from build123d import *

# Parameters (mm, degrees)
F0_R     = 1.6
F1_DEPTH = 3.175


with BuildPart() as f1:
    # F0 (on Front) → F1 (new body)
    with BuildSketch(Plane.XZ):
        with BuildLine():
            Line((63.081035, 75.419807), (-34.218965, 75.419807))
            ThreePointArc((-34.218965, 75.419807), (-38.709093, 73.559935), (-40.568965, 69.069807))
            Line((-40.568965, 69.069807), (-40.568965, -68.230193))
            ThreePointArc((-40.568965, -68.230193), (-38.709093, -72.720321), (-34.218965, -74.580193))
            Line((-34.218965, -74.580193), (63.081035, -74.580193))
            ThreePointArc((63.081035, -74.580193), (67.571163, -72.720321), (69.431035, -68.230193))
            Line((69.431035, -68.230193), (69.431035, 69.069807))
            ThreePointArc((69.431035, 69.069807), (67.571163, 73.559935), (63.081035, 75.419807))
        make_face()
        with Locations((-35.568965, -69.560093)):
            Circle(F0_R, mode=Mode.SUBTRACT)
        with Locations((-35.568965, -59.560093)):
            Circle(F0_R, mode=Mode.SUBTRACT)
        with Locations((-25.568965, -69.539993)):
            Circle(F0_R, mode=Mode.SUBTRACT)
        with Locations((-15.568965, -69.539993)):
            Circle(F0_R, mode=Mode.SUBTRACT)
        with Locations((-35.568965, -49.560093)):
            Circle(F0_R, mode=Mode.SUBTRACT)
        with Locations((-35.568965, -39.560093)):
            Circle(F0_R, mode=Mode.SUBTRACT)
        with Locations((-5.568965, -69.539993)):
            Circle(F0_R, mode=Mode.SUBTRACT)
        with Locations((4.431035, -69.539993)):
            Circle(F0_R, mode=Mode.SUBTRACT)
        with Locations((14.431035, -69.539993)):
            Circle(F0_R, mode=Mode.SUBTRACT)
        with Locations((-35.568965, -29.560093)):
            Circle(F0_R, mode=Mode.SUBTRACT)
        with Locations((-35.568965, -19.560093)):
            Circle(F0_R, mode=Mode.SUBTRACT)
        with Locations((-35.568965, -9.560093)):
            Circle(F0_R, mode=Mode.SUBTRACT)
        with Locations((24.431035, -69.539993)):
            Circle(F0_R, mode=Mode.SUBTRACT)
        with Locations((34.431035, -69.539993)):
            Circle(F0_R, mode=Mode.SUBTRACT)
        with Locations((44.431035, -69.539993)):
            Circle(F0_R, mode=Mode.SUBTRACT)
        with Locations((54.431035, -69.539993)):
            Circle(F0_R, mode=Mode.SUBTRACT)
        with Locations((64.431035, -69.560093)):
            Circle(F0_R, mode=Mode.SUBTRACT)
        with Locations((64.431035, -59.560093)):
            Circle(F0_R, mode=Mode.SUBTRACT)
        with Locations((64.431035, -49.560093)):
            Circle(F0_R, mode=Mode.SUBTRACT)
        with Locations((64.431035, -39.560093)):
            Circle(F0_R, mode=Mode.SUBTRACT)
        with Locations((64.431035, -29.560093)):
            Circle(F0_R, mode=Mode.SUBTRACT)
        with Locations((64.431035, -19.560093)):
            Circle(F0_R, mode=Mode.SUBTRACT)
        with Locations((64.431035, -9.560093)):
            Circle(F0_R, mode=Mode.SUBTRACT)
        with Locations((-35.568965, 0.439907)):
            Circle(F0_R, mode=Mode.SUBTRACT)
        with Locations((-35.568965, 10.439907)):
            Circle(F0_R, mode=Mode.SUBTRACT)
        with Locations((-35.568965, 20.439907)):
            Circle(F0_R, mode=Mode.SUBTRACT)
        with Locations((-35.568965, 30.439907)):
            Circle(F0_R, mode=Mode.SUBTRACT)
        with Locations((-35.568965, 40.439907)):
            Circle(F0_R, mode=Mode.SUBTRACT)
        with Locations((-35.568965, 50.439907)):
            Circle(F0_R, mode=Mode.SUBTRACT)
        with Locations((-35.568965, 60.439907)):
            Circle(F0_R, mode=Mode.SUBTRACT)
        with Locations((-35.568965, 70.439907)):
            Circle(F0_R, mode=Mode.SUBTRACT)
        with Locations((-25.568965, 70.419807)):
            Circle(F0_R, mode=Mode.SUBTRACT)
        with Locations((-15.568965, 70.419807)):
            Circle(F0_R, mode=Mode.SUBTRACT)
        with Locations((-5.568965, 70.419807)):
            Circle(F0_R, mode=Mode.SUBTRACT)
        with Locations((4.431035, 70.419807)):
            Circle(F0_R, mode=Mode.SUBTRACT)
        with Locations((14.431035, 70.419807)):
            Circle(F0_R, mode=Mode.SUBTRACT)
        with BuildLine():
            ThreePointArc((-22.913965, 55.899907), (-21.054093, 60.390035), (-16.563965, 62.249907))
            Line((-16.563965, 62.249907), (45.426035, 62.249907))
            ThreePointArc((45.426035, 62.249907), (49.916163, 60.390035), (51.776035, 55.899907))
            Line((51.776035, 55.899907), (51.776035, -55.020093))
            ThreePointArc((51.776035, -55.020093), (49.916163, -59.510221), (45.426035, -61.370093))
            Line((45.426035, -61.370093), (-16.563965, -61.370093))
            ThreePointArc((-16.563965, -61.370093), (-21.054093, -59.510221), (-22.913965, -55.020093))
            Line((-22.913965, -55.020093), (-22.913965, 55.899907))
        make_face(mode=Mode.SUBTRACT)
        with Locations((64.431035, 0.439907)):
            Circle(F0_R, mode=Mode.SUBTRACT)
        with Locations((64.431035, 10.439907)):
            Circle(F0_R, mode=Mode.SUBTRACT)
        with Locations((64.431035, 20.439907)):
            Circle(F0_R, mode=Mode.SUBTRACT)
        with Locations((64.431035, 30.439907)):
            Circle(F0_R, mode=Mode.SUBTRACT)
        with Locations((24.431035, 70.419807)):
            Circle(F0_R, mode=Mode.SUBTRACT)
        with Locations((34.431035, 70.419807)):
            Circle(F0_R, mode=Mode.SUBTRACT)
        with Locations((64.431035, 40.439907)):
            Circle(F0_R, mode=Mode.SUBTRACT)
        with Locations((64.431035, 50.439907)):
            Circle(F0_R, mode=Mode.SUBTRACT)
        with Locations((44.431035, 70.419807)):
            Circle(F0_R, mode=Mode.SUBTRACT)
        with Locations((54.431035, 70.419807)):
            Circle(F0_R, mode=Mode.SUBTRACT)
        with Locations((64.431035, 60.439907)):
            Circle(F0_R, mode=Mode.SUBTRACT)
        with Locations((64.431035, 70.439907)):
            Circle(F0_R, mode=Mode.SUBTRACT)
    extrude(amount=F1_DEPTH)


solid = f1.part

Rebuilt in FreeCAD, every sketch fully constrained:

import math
import FreeCAD as App
import Part
import Sketcher

doc = App.newDocument("Part")
params = doc.addObject("Spreadsheet::Sheet", "Params")
for row, (alias, value) in enumerate([
    ("sketch1_diameter", "3.2 mm"),
    ("sketch1_radius", "6.35 mm"),
    ("sketch1_width", "97.3 mm"),
    ("sketch1_height", "137.3 mm"),
    ("sketch1_width2", "61.99 mm"),
    ("pad1_length", "3.175 mm"),
], start=1):
    params.set(f"A{row}", alias)
    params.set(f"B{row}", "=" + value)
    params.setAlias(f"B{row}", alias)

body = doc.addObject("PartDesign::Body", "Body")

sketch1 = doc.addObject("Sketcher::SketchObject", "Sketch")
body.addObject(sketch1)
sketch1.AttachmentSupport = (doc.XZ_Plane, [""])
sketch1.MapMode = "FlatFace"
sketch1.addGeometry(Part.LineSegment(App.Vector(63.1, 75.4, 0), App.Vector(-34.2, 75.4, 0)), False)
sketch1.addGeometry(Part.ArcOfCircle(Part.Circle(App.Vector(-34.2, 69.1, 0), App.Vector(0, 0, 1), 6.4), math.radians(90), math.radians(180)), False)
sketch1.addGeometry(Part.LineSegment(App.Vector(-40.6, 69.1, 0), App.Vector(-40.6, -68.2, 0)), False)
sketch1.addGeometry(Part.ArcOfCircle(Part.Circle(App.Vector(-34.2, -68.2, 0), App.Vector(0, 0, 1), 6.4), math.radians(-180), math.radians(-90)), False)
sketch1.addGeometry(Part.LineSegment(App.Vector(-34.2, -74.6, 0), App.Vector(63.1, -74.6, 0)), False)
sketch1.addGeometry(Part.ArcOfCircle(Part.Circle(App.Vector(63.1, -68.2, 0), App.Vector(0, 0, 1), 6.4), math.radians(-90), math.radians(0)), False)
sketch1.addGeometry(Part.LineSegment(App.Vector(69.4, -68.2, 0), App.Vector(69.4, 69.1, 0)), False)
sketch1.addGeometry(Part.ArcOfCircle(Part.Circle(App.Vector(63.1, 69.1, 0), App.Vector(0, 0, 1), 6.4), math.radians(0), math.radians(90)), False)
sketch1.addGeometry(Part.Circle(App.Vector(-35.6, -69.6, 0), App.Vector(0, 0, 1), 1.6), False)
sketch1.addGeometry(Part.Circle(App.Vector(-25.6, -69.5, 0), App.Vector(0, 0, 1), 1.6), False)
sketch1.addGeometry(Part.Circle(App.Vector(-35.6, -59.6, 0), App.Vector(0, 0, 1), 1.6), False)
sketch1.addGeometry(Part.Circle(App.Vector(-15.6, -69.5, 0), App.Vector(0, 0, 1), 1.6), False)
sketch1.addGeometry(Part.Circle(App.Vector(-35.6, -49.6, 0), App.Vector(0, 0, 1), 1.6), False)
sketch1.addGeometry(Part.Circle(App.Vector(-35.6, -39.6, 0), App.Vector(0, 0, 1), 1.6), False)
sketch1.addGeometry(Part.Circle(App.Vector(-5.6, -69.5, 0), App.Vector(0, 0, 1), 1.6), False)
sketch1.addGeometry(Part.Circle(App.Vector(4.4, -69.5, 0), App.Vector(0, 0, 1), 1.6), False)
sketch1.addGeometry(Part.Circle(App.Vector(-35.6, -29.6, 0), App.Vector(0, 0, 1), 1.6), False)
sketch1.addGeometry(Part.Circle(App.Vector(-35.6, -19.6, 0), App.Vector(0, 0, 1), 1.6), False)
sketch1.addGeometry(Part.Circle(App.Vector(-35.6, -9.6, 0), App.Vector(0, 0, 1), 1.6), False)
sketch1.addGeometry(Part.Circle(App.Vector(14.4, -69.5, 0), App.Vector(0, 0, 1), 1.6), False)
sketch1.addGeometry(Part.Circle(App.Vector(24.4, -69.5, 0), App.Vector(0, 0, 1), 1.6), False)
sketch1.addGeometry(Part.Circle(App.Vector(34.4, -69.5, 0), App.Vector(0, 0, 1), 1.6), False)
sketch1.addGeometry(Part.Circle(App.Vector(44.4, -69.5, 0), App.Vector(0, 0, 1), 1.6), False)
sketch1.addGeometry(Part.Circle(App.Vector(54.4, -69.5, 0), App.Vector(0, 0, 1), 1.6), False)
sketch1.addGeometry(Part.Circle(App.Vector(64.4, -69.6, 0), App.Vector(0, 0, 1), 1.6), False)
sketch1.addGeometry(Part.Circle(App.Vector(64.4, -59.6, 0), App.Vector(0, 0, 1), 1.6), False)
sketch1.addGeometry(Part.Circle(App.Vector(64.4, -49.6, 0), App.Vector(0, 0, 1), 1.6), False)
sketch1.addGeometry(Part.Circle(App.Vector(64.4, -39.6, 0), App.Vector(0, 0, 1), 1.6), False)
sketch1.addGeometry(Part.Circle(App.Vector(64.4, -29.6, 0), App.Vector(0, 0, 1), 1.6), False)
sketch1.addGeometry(Part.Circle(App.Vector(64.4, -19.6, 0), App.Vector(0, 0, 1), 1.6), False)
sketch1.addGeometry(Part.Circle(App.Vector(64.4, -9.6, 0), App.Vector(0, 0, 1), 1.6), False)
sketch1.addGeometry(Part.Circle(App.Vector(-35.6, 0.4, 0), App.Vector(0, 0, 1), 1.6), False)
sketch1.addGeometry(Part.Circle(App.Vector(-35.6, 10.4, 0), App.Vector(0, 0, 1), 1.6), False)
sketch1.addGeometry(Part.Circle(App.Vector(-35.6, 20.4, 0), App.Vector(0, 0, 1), 1.6), False)
sketch1.addGeometry(Part.Circle(App.Vector(-35.6, 30.4, 0), App.Vector(0, 0, 1), 1.6), False)
sketch1.addGeometry(Part.Circle(App.Vector(-35.6, 40.4, 0), App.Vector(0, 0, 1), 1.6), False)
sketch1.addGeometry(Part.Circle(App.Vector(-35.6, 50.4, 0), App.Vector(0, 0, 1), 1.6), False)
sketch1.addGeometry(Part.Circle(App.Vector(-35.6, 60.4, 0), App.Vector(0, 0, 1), 1.6), False)
sketch1.addGeometry(Part.Circle(App.Vector(-35.6, 70.4, 0), App.Vector(0, 0, 1), 1.6), False)
sketch1.addGeometry(Part.Circle(App.Vector(-25.6, 70.4, 0), App.Vector(0, 0, 1), 1.6), False)
sketch1.addGeometry(Part.Circle(App.Vector(-15.6, 70.4, 0), App.Vector(0, 0, 1), 1.6), False)
sketch1.addGeometry(Part.Circle(App.Vector(-5.6, 70.4, 0), App.Vector(0, 0, 1), 1.6), False)
sketch1.addGeometry(Part.Circle(App.Vector(4.4, 70.4, 0), App.Vector(0, 0, 1), 1.6), False)
sketch1.addGeometry(Part.LineSegment(App.Vector(-22.9, -55, 0), App.Vector(-22.9, 55.9, 0)), False)
sketch1.addGeometry(Part.ArcOfCircle(Part.Circle(App.Vector(-16.6, 55.9, 0), App.Vector(0, 0, 1), 6.4), math.radians(90), math.radians(180)), False)
sketch1.addGeometry(Part.LineSegment(App.Vector(-16.6, 62.2, 0), App.Vector(45.4, 62.2, 0)), False)
sketch1.addGeometry(Part.ArcOfCircle(Part.Circle(App.Vector(45.4, 55.9, 0), App.Vector(0, 0, 1), 6.4), math.radians(0), math.radians(90)), False)
sketch1.addGeometry(Part.LineSegment(App.Vector(51.8, 55.9, 0), App.Vector(51.8, -55, 0)), False)
sketch1.addGeometry(Part.ArcOfCircle(Part.Circle(App.Vector(45.4, -55, 0), App.Vector(0, 0, 1), 6.4), math.radians(-90), math.radians(0)), False)
sketch1.addGeometry(Part.LineSegment(App.Vector(45.4, -61.4, 0), App.Vector(-16.6, -61.4, 0)), False)
sketch1.addGeometry(Part.ArcOfCircle(Part.Circle(App.Vector(-16.6, -55, 0), App.Vector(0, 0, 1), 6.4), math.radians(-180), math.radians(-90)), False)
sketch1.addGeometry(Part.Circle(App.Vector(64.4, 0.4, 0), App.Vector(0, 0, 1), 1.6), False)
sketch1.addGeometry(Part.Circle(App.Vector(64.4, 10.4, 0), App.Vector(0, 0, 1), 1.6), False)
sketch1.addGeometry(Part.Circle(App.Vector(64.4, 20.4, 0), App.Vector(0, 0, 1), 1.6), False)
sketch1.addGeometry(Part.Circle(App.Vector(64.4, 30.4, 0), App.Vector(0, 0, 1), 1.6), False)
sketch1.addGeometry(Part.Circle(App.Vector(14.4, 70.4, 0), App.Vector(0, 0, 1), 1.6), False)
sketch1.addGeometry(Part.Circle(App.Vector(24.4, 70.4, 0), App.Vector(0, 0, 1), 1.6), False)
sketch1.addGeometry(Part.Circle(App.Vector(34.4, 70.4, 0), App.Vector(0, 0, 1), 1.6), False)
sketch1.addGeometry(Part.Circle(App.Vector(64.4, 40.4, 0), App.Vector(0, 0, 1), 1.6), False)
sketch1.addGeometry(Part.Circle(App.Vector(64.4, 50.4, 0), App.Vector(0, 0, 1), 1.6), False)
sketch1.addGeometry(Part.Circle(App.Vector(44.4, 70.4, 0), App.Vector(0, 0, 1), 1.6), False)
sketch1.addGeometry(Part.Circle(App.Vector(64.4, 60.4, 0), App.Vector(0, 0, 1), 1.6), False)
sketch1.addGeometry(Part.Circle(App.Vector(54.4, 70.4, 0), App.Vector(0, 0, 1), 1.6), False)
sketch1.addGeometry(Part.Circle(App.Vector(64.4, 70.4, 0), App.Vector(0, 0, 1), 1.6), False)
sketch1.addConstraint(Sketcher.Constraint("Tangent", 0, 2, 1, 1))
sketch1.addConstraint(Sketcher.Constraint("Tangent", 1, 2, 2, 1))
sketch1.addConstraint(Sketcher.Constraint("Tangent", 2, 2, 3, 1))
sketch1.addConstraint(Sketcher.Constraint("Tangent", 3, 2, 4, 1))
sketch1.addConstraint(Sketcher.Constraint("Tangent", 4, 2, 5, 1))
sketch1.addConstraint(Sketcher.Constraint("Tangent", 5, 2, 6, 1))
sketch1.addConstraint(Sketcher.Constraint("Tangent", 6, 2, 7, 1))
sketch1.addConstraint(Sketcher.Constraint("Tangent", 7, 2, 0, 1))
sketch1.addConstraint(Sketcher.Constraint("Tangent", 43, 2, 44, 2))
sketch1.addConstraint(Sketcher.Constraint("Tangent", 44, 1, 45, 1))
sketch1.addConstraint(Sketcher.Constraint("Tangent", 45, 2, 46, 2))
sketch1.addConstraint(Sketcher.Constraint("Tangent", 46, 1, 47, 1))
sketch1.addConstraint(Sketcher.Constraint("Tangent", 47, 2, 48, 2))
sketch1.addConstraint(Sketcher.Constraint("Tangent", 48, 1, 49, 1))
sketch1.addConstraint(Sketcher.Constraint("Tangent", 49, 2, 50, 2))
sketch1.addConstraint(Sketcher.Constraint("Tangent", 50, 1, 43, 1))
sketch1.addConstraint(Sketcher.Constraint("Horizontal", 0))
sketch1.addConstraint(Sketcher.Constraint("Vertical", 2))
sketch1.addConstraint(Sketcher.Constraint("Horizontal", 4))
sketch1.addConstraint(Sketcher.Constraint("Vertical", 6))
sketch1.addConstraint(Sketcher.Constraint("Vertical", 43))
sketch1.addConstraint(Sketcher.Constraint("Horizontal", 45))
sketch1.addConstraint(Sketcher.Constraint("Vertical", 47))
sketch1.addConstraint(Sketcher.Constraint("Horizontal", 49))
sketch1.addConstraint(Sketcher.Constraint("Equal", 1, 3))
sketch1.addConstraint(Sketcher.Constraint("Equal", 3, 5))
sketch1.addConstraint(Sketcher.Constraint("Equal", 5, 7))
sketch1.addConstraint(Sketcher.Constraint("Equal", 8, 9))
sketch1.addConstraint(Sketcher.Constraint("Equal", 9, 10))
sketch1.addConstraint(Sketcher.Constraint("Equal", 10, 11))
sketch1.addConstraint(Sketcher.Constraint("Equal", 11, 12))
sketch1.addConstraint(Sketcher.Constraint("Equal", 12, 13))
sketch1.addConstraint(Sketcher.Constraint("Equal", 13, 14))
sketch1.addConstraint(Sketcher.Constraint("Equal", 14, 15))
sketch1.addConstraint(Sketcher.Constraint("Equal", 15, 16))
sketch1.addConstraint(Sketcher.Constraint("Equal", 16, 17))
sketch1.addConstraint(Sketcher.Constraint("Equal", 17, 18))
sketch1.addConstraint(Sketcher.Constraint("Equal", 18, 19))
sketch1.addConstraint(Sketcher.Constraint("Equal", 19, 20))
sketch1.addConstraint(Sketcher.Constraint("Equal", 20, 21))
sketch1.addConstraint(Sketcher.Constraint("Equal", 21, 22))
sketch1.addConstraint(Sketcher.Constraint("Equal", 22, 23))
sketch1.addConstraint(Sketcher.Constraint("Equal", 23, 24))
sketch1.addConstraint(Sketcher.Constraint("Equal", 24, 25))
sketch1.addConstraint(Sketcher.Constraint("Equal", 25, 26))
sketch1.addConstraint(Sketcher.Constraint("Equal", 26, 27))
sketch1.addConstraint(Sketcher.Constraint("Equal", 27, 28))
sketch1.addConstraint(Sketcher.Constraint("Equal", 28, 29))
sketch1.addConstraint(Sketcher.Constraint("Equal", 29, 30))
sketch1.addConstraint(Sketcher.Constraint("Equal", 30, 31))
sketch1.addConstraint(Sketcher.Constraint("Equal", 31, 32))
sketch1.addConstraint(Sketcher.Constraint("Equal", 32, 33))
sketch1.addConstraint(Sketcher.Constraint("Equal", 33, 34))
sketch1.addConstraint(Sketcher.Constraint("Equal", 34, 35))
sketch1.addConstraint(Sketcher.Constraint("Equal", 35, 36))
sketch1.addConstraint(Sketcher.Constraint("Equal", 36, 37))
sketch1.addConstraint(Sketcher.Constraint("Equal", 37, 38))
sketch1.addConstraint(Sketcher.Constraint("Equal", 38, 39))
sketch1.addConstraint(Sketcher.Constraint("Equal", 39, 40))
sketch1.addConstraint(Sketcher.Constraint("Equal", 40, 41))
sketch1.addConstraint(Sketcher.Constraint("Equal", 41, 42))
sketch1.addConstraint(Sketcher.Constraint("Equal", 7, 44))
sketch1.addConstraint(Sketcher.Constraint("Equal", 44, 46))
sketch1.addConstraint(Sketcher.Constraint("Equal", 46, 48))
sketch1.addConstraint(Sketcher.Constraint("Equal", 48, 50))
sketch1.addConstraint(Sketcher.Constraint("Equal", 42, 51))
sketch1.addConstraint(Sketcher.Constraint("Equal", 51, 52))
sketch1.addConstraint(Sketcher.Constraint("Equal", 52, 53))
sketch1.addConstraint(Sketcher.Constraint("Equal", 53, 54))
sketch1.addConstraint(Sketcher.Constraint("Equal", 54, 55))
sketch1.addConstraint(Sketcher.Constraint("Equal", 55, 56))
sketch1.addConstraint(Sketcher.Constraint("Equal", 56, 57))
sketch1.addConstraint(Sketcher.Constraint("Equal", 57, 58))
sketch1.addConstraint(Sketcher.Constraint("Equal", 58, 59))
sketch1.addConstraint(Sketcher.Constraint("Equal", 59, 60))
sketch1.addConstraint(Sketcher.Constraint("Equal", 60, 61))
sketch1.addConstraint(Sketcher.Constraint("Equal", 61, 62))
sketch1.addConstraint(Sketcher.Constraint("Equal", 62, 63))
sketch1.addConstraint(Sketcher.Constraint("Horizontal", 9, 3, 11, 3))
sketch1.addConstraint(Sketcher.Constraint("Horizontal", 11, 3, 14, 3))
sketch1.addConstraint(Sketcher.Constraint("Horizontal", 14, 3, 15, 3))
sketch1.addConstraint(Sketcher.Constraint("Horizontal", 15, 3, 19, 3))
sketch1.addConstraint(Sketcher.Constraint("Horizontal", 19, 3, 20, 3))
sketch1.addConstraint(Sketcher.Constraint("Horizontal", 20, 3, 21, 3))
sketch1.addConstraint(Sketcher.Constraint("Horizontal", 21, 3, 22, 3))
sketch1.addConstraint(Sketcher.Constraint("Horizontal", 22, 3, 23, 3))
sketch1.addConstraint(Sketcher.Constraint("Horizontal", 8, 3, 24, 3))
sketch1.addConstraint(Sketcher.Constraint("Horizontal", 10, 3, 25, 3))
sketch1.addConstraint(Sketcher.Constraint("Horizontal", 12, 3, 26, 3))
sketch1.addConstraint(Sketcher.Constraint("Horizontal", 13, 3, 27, 3))
sketch1.addConstraint(Sketcher.Constraint("Horizontal", 16, 3, 28, 3))
sketch1.addConstraint(Sketcher.Constraint("Horizontal", 17, 3, 29, 3))
sketch1.addConstraint(Sketcher.Constraint("Horizontal", 18, 3, 30, 3))
sketch1.addConstraint(Sketcher.Constraint("Horizontal", 39, 3, 40, 3))
sketch1.addConstraint(Sketcher.Constraint("Horizontal", 40, 3, 41, 3))
sketch1.addConstraint(Sketcher.Constraint("Horizontal", 41, 3, 42, 3))
sketch1.addConstraint(Sketcher.Constraint("Horizontal", 31, 3, 51, 3))
sketch1.addConstraint(Sketcher.Constraint("Horizontal", 32, 3, 52, 3))
sketch1.addConstraint(Sketcher.Constraint("Horizontal", 33, 3, 53, 3))
sketch1.addConstraint(Sketcher.Constraint("Horizontal", 34, 3, 54, 3))
sketch1.addConstraint(Sketcher.Constraint("Horizontal", 42, 3, 55, 3))
sketch1.addConstraint(Sketcher.Constraint("Horizontal", 55, 3, 56, 3))
sketch1.addConstraint(Sketcher.Constraint("Horizontal", 56, 3, 57, 3))
sketch1.addConstraint(Sketcher.Constraint("Horizontal", 35, 3, 58, 3))
sketch1.addConstraint(Sketcher.Constraint("Horizontal", 36, 3, 59, 3))
sketch1.addConstraint(Sketcher.Constraint("Horizontal", 57, 3, 60, 3))
sketch1.addConstraint(Sketcher.Constraint("Horizontal", 37, 3, 61, 3))
sketch1.addConstraint(Sketcher.Constraint("Horizontal", 60, 3, 62, 3))
sketch1.addConstraint(Sketcher.Constraint("Horizontal", 38, 3, 63, 3))
sketch1.addConstraint(Sketcher.Constraint("Vertical", 8, 3, 10, 3))
sketch1.addConstraint(Sketcher.Constraint("Vertical", 10, 3, 12, 3))
sketch1.addConstraint(Sketcher.Constraint("Vertical", 12, 3, 13, 3))
sketch1.addConstraint(Sketcher.Constraint("Vertical", 13, 3, 16, 3))
sketch1.addConstraint(Sketcher.Constraint("Vertical", 16, 3, 17, 3))
sketch1.addConstraint(Sketcher.Constraint("Vertical", 17, 3, 18, 3))
sketch1.addConstraint(Sketcher.Constraint("Vertical", 24, 3, 25, 3))
sketch1.addConstraint(Sketcher.Constraint("Vertical", 25, 3, 26, 3))
sketch1.addConstraint(Sketcher.Constraint("Vertical", 26, 3, 27, 3))
sketch1.addConstraint(Sketcher.Constraint("Vertical", 27, 3, 28, 3))
sketch1.addConstraint(Sketcher.Constraint("Vertical", 28, 3, 29, 3))
sketch1.addConstraint(Sketcher.Constraint("Vertical", 29, 3, 30, 3))
sketch1.addConstraint(Sketcher.Constraint("Vertical", 18, 3, 31, 3))
sketch1.addConstraint(Sketcher.Constraint("Vertical", 31, 3, 32, 3))
sketch1.addConstraint(Sketcher.Constraint("Vertical", 32, 3, 33, 3))
sketch1.addConstraint(Sketcher.Constraint("Vertical", 33, 3, 34, 3))
sketch1.addConstraint(Sketcher.Constraint("Vertical", 34, 3, 35, 3))
sketch1.addConstraint(Sketcher.Constraint("Vertical", 35, 3, 36, 3))
sketch1.addConstraint(Sketcher.Constraint("Vertical", 36, 3, 37, 3))
sketch1.addConstraint(Sketcher.Constraint("Vertical", 37, 3, 38, 3))
sketch1.addConstraint(Sketcher.Constraint("Vertical", 9, 3, 39, 3))
sketch1.addConstraint(Sketcher.Constraint("Vertical", 11, 3, 40, 3))
sketch1.addConstraint(Sketcher.Constraint("Vertical", 14, 3, 41, 3))
sketch1.addConstraint(Sketcher.Constraint("Vertical", 15, 3, 42, 3))
sketch1.addConstraint(Sketcher.Constraint("Vertical", 30, 3, 51, 3))
sketch1.addConstraint(Sketcher.Constraint("Vertical", 51, 3, 52, 3))
sketch1.addConstraint(Sketcher.Constraint("Vertical", 52, 3, 53, 3))
sketch1.addConstraint(Sketcher.Constraint("Vertical", 53, 3, 54, 3))
sketch1.addConstraint(Sketcher.Constraint("Vertical", 19, 3, 55, 3))
sketch1.addConstraint(Sketcher.Constraint("Vertical", 20, 3, 56, 3))
sketch1.addConstraint(Sketcher.Constraint("Vertical", 21, 3, 57, 3))
sketch1.addConstraint(Sketcher.Constraint("Vertical", 54, 3, 58, 3))
sketch1.addConstraint(Sketcher.Constraint("Vertical", 58, 3, 59, 3))
sketch1.addConstraint(Sketcher.Constraint("Vertical", 22, 3, 60, 3))
sketch1.addConstraint(Sketcher.Constraint("Vertical", 59, 3, 61, 3))
sketch1.addConstraint(Sketcher.Constraint("Vertical", 23, 3, 62, 3))
sketch1.addConstraint(Sketcher.Constraint("Vertical", 61, 3, 63, 3))
sketch1.addConstraint(Sketcher.Constraint("Diameter", 8, 3.2))
sketch1.addConstraint(Sketcher.Constraint("Radius", 1, 6.35))
sketch1.addConstraint(Sketcher.Constraint("DistanceX", 0, 2, 0, 1, 97.3))
sketch1.addConstraint(Sketcher.Constraint("DistanceY", 2, 2, 2, 1, 137.3))
sketch1.addConstraint(Sketcher.Constraint("DistanceX", 45, 1, 45, 2, 61.99))
sketch1.addConstraint(Sketcher.Constraint("DistanceY", 43, 1, 43, 2, 110.92))
sketch1.addConstraint(Sketcher.Constraint("DistanceX", 1, 3, -1, 1, 34.218965))
sketch1.addConstraint(Sketcher.Constraint("DistanceY", -1, 1, 1, 3, 69.069807))
sketch1.addConstraint(Sketcher.Constraint("DistanceX", 8, 3, -1, 1, 35.568965))
sketch1.addConstraint(Sketcher.Constraint("DistanceY", 8, 3, -1, 1, 69.560093))
sketch1.addConstraint(Sketcher.Constraint("DistanceX", 9, 3, -1, 1, 25.568965))
sketch1.addConstraint(Sketcher.Constraint("DistanceY", 9, 3, -1, 1, 69.539993))
sketch1.addConstraint(Sketcher.Constraint("DistanceY", 10, 3, -1, 1, 59.560093))
sketch1.addConstraint(Sketcher.Constraint("DistanceX", 11, 3, -1, 1, 15.568965))
sketch1.addConstraint(Sketcher.Constraint("DistanceY", 12, 3, -1, 1, 49.560093))
sketch1.addConstraint(Sketcher.Constraint("DistanceY", 13, 3, -1, 1, 39.560093))
sketch1.addConstraint(Sketcher.Constraint("DistanceX", 14, 3, -1, 1, 5.568965))
sketch1.addConstraint(Sketcher.Constraint("DistanceX", -1, 1, 15, 3, 4.431035))
sketch1.addConstraint(Sketcher.Constraint("DistanceY", 16, 3, -1, 1, 29.560093))
sketch1.addConstraint(Sketcher.Constraint("DistanceY", 17, 3, -1, 1, 19.560093))
sketch1.addConstraint(Sketcher.Constraint("DistanceY", 18, 3, -1, 1, 9.560093))
sketch1.addConstraint(Sketcher.Constraint("DistanceX", -1, 1, 19, 3, 14.431035))
sketch1.addConstraint(Sketcher.Constraint("DistanceX", -1, 1, 20, 3, 24.431035))
sketch1.addConstraint(Sketcher.Constraint("DistanceX", -1, 1, 21, 3, 34.431035))
sketch1.addConstraint(Sketcher.Constraint("DistanceX", -1, 1, 22, 3, 44.431035))
sketch1.addConstraint(Sketcher.Constraint("DistanceX", -1, 1, 23, 3, 54.431035))
sketch1.addConstraint(Sketcher.Constraint("DistanceX", -1, 1, 24, 3, 64.431035))
sketch1.addConstraint(Sketcher.Constraint("DistanceY", -1, 1, 31, 3, 0.439907))
sketch1.addConstraint(Sketcher.Constraint("DistanceY", -1, 1, 32, 3, 10.439907))
sketch1.addConstraint(Sketcher.Constraint("DistanceY", -1, 1, 33, 3, 20.439907))
sketch1.addConstraint(Sketcher.Constraint("DistanceY", -1, 1, 34, 3, 30.439907))
sketch1.addConstraint(Sketcher.Constraint("DistanceY", -1, 1, 35, 3, 40.439907))
sketch1.addConstraint(Sketcher.Constraint("DistanceY", -1, 1, 36, 3, 50.439907))
sketch1.addConstraint(Sketcher.Constraint("DistanceY", -1, 1, 37, 3, 60.439907))
sketch1.addConstraint(Sketcher.Constraint("DistanceY", -1, 1, 38, 3, 70.439907))
sketch1.addConstraint(Sketcher.Constraint("DistanceY", -1, 1, 39, 3, 70.419807))
sketch1.addConstraint(Sketcher.Constraint("DistanceX", 44, 3, -1, 1, 16.563965))
sketch1.addConstraint(Sketcher.Constraint("DistanceY", -1, 1, 44, 3, 55.899907))
sketch1.setExpression("Constraints[146]", "Params.sketch1_diameter")
sketch1.setExpression("Constraints[147]", "Params.sketch1_radius")
sketch1.setExpression("Constraints[148]", "Params.sketch1_width")
sketch1.setExpression("Constraints[149]", "Params.sketch1_height")
sketch1.setExpression("Constraints[150]", "Params.sketch1_width2")
pad1 = doc.addObject("PartDesign::Pad", "Pad")
body.addObject(pad1)
pad1.Profile = sketch1
pad1.setExpression("Length", "Params.pad1_length")

doc.recompute()
